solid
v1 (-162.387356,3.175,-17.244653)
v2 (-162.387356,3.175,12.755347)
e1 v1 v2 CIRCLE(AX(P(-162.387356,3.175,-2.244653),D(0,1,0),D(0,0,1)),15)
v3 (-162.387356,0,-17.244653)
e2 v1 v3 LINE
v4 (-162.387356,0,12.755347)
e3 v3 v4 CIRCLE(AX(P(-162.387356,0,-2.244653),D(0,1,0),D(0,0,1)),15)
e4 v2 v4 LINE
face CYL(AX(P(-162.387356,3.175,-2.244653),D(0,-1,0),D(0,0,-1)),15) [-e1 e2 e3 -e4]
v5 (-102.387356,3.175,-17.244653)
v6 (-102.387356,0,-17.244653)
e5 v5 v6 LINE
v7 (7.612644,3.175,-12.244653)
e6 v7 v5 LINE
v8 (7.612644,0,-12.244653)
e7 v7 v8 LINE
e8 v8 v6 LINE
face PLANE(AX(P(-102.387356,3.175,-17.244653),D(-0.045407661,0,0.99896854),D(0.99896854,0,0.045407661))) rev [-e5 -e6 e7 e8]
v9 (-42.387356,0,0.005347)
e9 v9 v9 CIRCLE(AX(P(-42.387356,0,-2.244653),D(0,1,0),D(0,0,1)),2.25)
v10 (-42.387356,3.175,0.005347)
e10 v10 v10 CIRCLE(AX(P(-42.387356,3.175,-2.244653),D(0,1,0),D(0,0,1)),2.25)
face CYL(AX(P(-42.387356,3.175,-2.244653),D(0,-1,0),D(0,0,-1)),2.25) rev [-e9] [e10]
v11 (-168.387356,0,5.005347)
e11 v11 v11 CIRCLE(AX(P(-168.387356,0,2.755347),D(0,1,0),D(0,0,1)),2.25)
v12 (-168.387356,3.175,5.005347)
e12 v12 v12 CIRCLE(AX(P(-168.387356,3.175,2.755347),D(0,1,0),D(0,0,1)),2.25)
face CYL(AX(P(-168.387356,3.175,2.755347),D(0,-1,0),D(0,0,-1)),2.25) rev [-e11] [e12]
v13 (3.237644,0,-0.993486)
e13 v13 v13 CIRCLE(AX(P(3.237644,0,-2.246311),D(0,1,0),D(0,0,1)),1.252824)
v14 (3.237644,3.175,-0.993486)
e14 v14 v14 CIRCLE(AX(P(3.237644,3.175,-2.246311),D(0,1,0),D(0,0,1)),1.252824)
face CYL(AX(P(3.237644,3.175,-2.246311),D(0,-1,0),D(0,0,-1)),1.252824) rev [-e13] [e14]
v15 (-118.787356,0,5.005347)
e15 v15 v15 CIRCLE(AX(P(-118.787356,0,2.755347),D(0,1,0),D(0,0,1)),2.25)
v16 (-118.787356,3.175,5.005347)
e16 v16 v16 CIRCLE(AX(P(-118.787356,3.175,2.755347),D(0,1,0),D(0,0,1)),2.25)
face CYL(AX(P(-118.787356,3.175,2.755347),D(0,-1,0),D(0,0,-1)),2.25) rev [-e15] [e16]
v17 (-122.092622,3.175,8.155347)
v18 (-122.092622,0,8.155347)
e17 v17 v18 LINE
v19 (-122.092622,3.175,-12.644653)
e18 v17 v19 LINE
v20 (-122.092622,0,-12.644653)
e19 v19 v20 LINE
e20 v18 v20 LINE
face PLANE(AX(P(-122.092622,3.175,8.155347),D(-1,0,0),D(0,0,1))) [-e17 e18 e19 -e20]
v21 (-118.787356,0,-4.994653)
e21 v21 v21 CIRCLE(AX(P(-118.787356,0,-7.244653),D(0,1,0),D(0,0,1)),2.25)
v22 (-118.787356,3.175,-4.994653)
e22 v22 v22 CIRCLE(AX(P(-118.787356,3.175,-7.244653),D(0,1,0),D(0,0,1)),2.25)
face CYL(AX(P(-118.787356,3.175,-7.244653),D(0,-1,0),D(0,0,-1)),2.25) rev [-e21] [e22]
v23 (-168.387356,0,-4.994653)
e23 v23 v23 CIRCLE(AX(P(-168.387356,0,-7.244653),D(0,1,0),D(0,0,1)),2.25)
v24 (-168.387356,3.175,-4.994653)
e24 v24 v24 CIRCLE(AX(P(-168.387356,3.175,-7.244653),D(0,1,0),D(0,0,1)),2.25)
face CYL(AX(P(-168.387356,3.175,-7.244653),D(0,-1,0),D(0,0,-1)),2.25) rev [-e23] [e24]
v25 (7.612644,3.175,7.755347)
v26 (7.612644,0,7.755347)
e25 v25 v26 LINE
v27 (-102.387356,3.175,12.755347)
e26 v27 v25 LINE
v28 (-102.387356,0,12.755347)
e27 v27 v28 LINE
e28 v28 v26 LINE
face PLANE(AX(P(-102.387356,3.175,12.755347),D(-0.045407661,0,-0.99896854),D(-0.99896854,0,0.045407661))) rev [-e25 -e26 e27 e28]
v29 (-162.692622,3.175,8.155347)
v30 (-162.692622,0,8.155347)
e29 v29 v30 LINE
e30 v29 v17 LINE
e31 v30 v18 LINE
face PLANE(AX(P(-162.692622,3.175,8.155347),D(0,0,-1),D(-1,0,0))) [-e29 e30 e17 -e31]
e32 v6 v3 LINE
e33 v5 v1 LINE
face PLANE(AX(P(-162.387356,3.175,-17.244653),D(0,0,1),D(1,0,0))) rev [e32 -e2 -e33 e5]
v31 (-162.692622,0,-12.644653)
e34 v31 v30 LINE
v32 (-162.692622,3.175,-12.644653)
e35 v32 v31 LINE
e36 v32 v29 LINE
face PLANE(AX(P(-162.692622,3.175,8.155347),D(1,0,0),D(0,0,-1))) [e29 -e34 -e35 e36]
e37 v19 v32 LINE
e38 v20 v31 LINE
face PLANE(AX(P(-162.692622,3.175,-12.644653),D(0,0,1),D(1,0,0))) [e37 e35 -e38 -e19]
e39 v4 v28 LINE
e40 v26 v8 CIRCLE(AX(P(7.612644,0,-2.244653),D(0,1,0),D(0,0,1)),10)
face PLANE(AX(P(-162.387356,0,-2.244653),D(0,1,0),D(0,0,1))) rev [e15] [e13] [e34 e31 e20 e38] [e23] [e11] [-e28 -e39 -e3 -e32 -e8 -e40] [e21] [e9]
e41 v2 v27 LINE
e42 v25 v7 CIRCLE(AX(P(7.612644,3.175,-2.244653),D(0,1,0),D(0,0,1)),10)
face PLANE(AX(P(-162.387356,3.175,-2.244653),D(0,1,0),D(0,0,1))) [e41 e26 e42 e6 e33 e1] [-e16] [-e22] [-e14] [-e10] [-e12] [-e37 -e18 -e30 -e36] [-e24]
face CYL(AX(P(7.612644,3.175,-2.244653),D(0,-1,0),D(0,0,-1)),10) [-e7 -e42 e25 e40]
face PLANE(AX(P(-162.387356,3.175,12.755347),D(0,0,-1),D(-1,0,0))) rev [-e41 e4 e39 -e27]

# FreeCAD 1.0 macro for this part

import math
import FreeCAD as App
import Part
import Sketcher

V = App.Vector

doc = App.newDocument("Part")
body = doc.addObject("PartDesign::Body", "Body")

sketch1 = body.newObject("Sketcher::SketchObject", "Sketch")
sketch1.AttachmentSupport = (doc.getObject("XZ_Plane"), [""])
sketch1.MapMode = "FlatFace"
sketch1.addGeometry(Part.LineSegment(V(-102.4, -17.2, 0), V(-162.4, -17.2, 0)), False)
sketch1.addGeometry(Part.ArcOfCircle(Part.Circle(V(-162.4, -2.2, 0), V(0, 0, 1), 15), math.radians(90), math.radians(270)), False)
sketch1.addGeometry(Part.LineSegment(V(-162.4, 12.8, 0), V(-102.4, 12.8, 0)), False)
sketch1.addGeometry(Part.LineSegment(V(-102.4, 12.8, 0), V(7.6, 7.8, 0)), False)
sketch1.addGeometry(Part.ArcOfCircle(Part.Circle(V(7.6, -2.2, 0), V(0, 0, 1), 10), math.radians(-90), math.radians(90)), False)
sketch1.addGeometry(Part.LineSegment(V(7.6, -12.2, 0), V(-102.4, -17.2, 0)), False)
sketch1.addGeometry(Part.Circle(V(-118.8, 2.8, 0), V(0, 0, 1), 2.2), False)
sketch1.addGeometry(Part.Circle(V(-168.4, 2.8, 0), V(0, 0, 1), 2.2), False)
sketch1.addGeometry(Part.Circle(V(3.2, -2.2, 0), V(0, 0, 1), 1.3), False)
sketch1.addGeometry(Part.Circle(V(-42.4, -2.2, 0), V(0, 0, 1), 2.2), False)
sketch1.addGeometry(Part.Circle(V(-118.8, -7.2, 0), V(0, 0, 1), 2.2), False)
sketch1.addGeometry(Part.LineSegment(V(-162.7, 8.2, 0), V(-162.7, -12.6, 0)), False)
sketch1.addGeometry(Part.LineSegment(V(-162.7, -12.6, 0), V(-122.1, -12.6, 0)), False)
sketch1.addGeometry(Part.LineSegment(V(-122.1, -12.6, 0), V(-122.1, 8.2, 0)), False)
sketch1.addGeometry(Part.LineSegment(V(-122.1, 8.2, 0), V(-162.7, 8.2, 0)), False)
sketch1.addGeometry(Part.Circle(V(-168.4, -7.2, 0), V(0, 0, 1), 2.2), False)
sketch1.addConstraint(Sketcher.Constraint("Tangent", 0, 2, 1, 2))
sketch1.addConstraint(Sketcher.Constraint("Tangent", 1, 1, 2, 1))
sketch1.addConstraint(Sketcher.Constraint("Coincident", 2, 2, 3, 1))
sketch1.addConstraint(Sketcher.Constraint("Coincident", 3, 2, 4, 2))
sketch1.addConstraint(Sketcher.Constraint("Coincident", 4, 1, 5, 1))
sketch1.addConstraint(Sketcher.Constraint("Coincident", 5, 2, 0, 1))
sketch1.addConstraint(Sketcher.Constraint("Coincident", 11, 2, 12, 1))
sketch1.addConstraint(Sketcher.Constraint("Coincident", 12, 2, 13, 1))
sketch1.addConstraint(Sketcher.Constraint("Coincident", 13, 2, 14, 1))
sketch1.addConstraint(Sketcher.Constraint("Coincident", 14, 2, 11, 1))
sketch1.addConstraint(Sketcher.Constraint("Horizontal", 0))
sketch1.addConstraint(Sketcher.Constraint("Horizontal", 2))
sketch1.addConstraint(Sketcher.Constraint("Vertical", 11))
sketch1.addConstraint(Sketcher.Constraint("Horizontal", 12))
sketch1.addConstraint(Sketcher.Constraint("Vertical", 13))
sketch1.addConstraint(Sketcher.Constraint("Horizontal", 14))
sketch1.addConstraint(Sketcher.Constraint("Equal", 6, 7))
sketch1.addConstraint(Sketcher.Constraint("Equal", 7, 9))
sketch1.addConstraint(Sketcher.Constraint("Equal", 9, 10))
sketch1.addConstraint(Sketcher.Constraint("Equal", 10, 15))
sketch1.addConstraint(Sketcher.Constraint("Horizontal", 1, 3, 4, 3))
sketch1.addConstraint(Sketcher.Constraint("Horizontal", 6, 3, 7, 3))
sketch1.addConstraint(Sketcher.Constraint("Horizontal", 4, 3, 9, 3))
sketch1.addConstraint(Sketcher.Constraint("Horizontal", 10, 3, 15, 3))
sketch1.addConstraint(Sketcher.Constraint("Vertical", 6, 3, 10, 3))
sketch1.addConstraint(Sketcher.Constraint("Vertical", 7, 3, 15, 3))
sketch1.addConstraint(Sketcher.Constraint("Vertical", 4, 3, 3, 2))
sketch1.addConstraint(Sketcher.Constraint("Vertical", 3, 2, 4, 1))
sketch1.addConstraint(Sketcher.Constraint("Vertical", 2, 2, 5, 2))
sketch1.addConstraint(Sketcher.Constraint("Radius", 1, 15.0))
sketch1.addConstraint(Sketcher.Constraint("Radius", 4, 10.0))
sketch1.addConstraint(Sketcher.Constraint("Diameter", 6, 4.5))
sketch1.addConstraint(Sketcher.Constraint("DistanceX", 0, 2, 0, 1, 60.0))
sketch1.addConstraint(Sketcher.Constraint("DistanceX", 12, 1, 12, 2, 40.6))
sketch1.addConstraint(Sketcher.Constraint("DistanceY", 11, 2, 11, 1, 20.8))
sketch1.addConstraint(Sketcher.Constraint("DistanceX", 1, 3, 4, 3, 170.0))
sketch1.addConstraint(Sketcher.Constraint("DistanceY", 1, 3, 6, 3, 5.0))
sketch1.addConstraint(Sketcher.Constraint("DistanceX", 7, 3, 1, 3, 6.0))
sketch1.addConstraint(Sketcher.Constraint("DistanceX", 9, 3, 4, 3, 50.0))
sketch1.addConstraint(Sketcher.Constraint("DistanceY", 10, 3, 6, 3, 10.0))
sketch1.addConstraint(Sketcher.Constraint("DistanceX", 1, 3, 6, 3, 43.6))
sketch1.addConstraint(Sketcher.Constraint("DistanceY", 0, 2, 11, 2, 4.6))
sketch1.addConstraint(Sketcher.Constraint("Diameter", 8, 2.505649))
sketch1.addConstraint(Sketcher.Constraint("DistanceX", 8, 3, 4, 3, 4.375))
sketch1.addConstraint(Sketcher.Constraint("DistanceY", 8, 3, -1, 1, 2.246311))
sketch1.addConstraint(Sketcher.Constraint("DistanceX", 11, 2, -1, 1, 162.692622))
sketch1.addConstraint(Sketcher.Constraint("DistanceX", 1, 3, -1, 1, 162.387356))
sketch1.addConstraint(Sketcher.Constraint("DistanceY", 1, 3, -1, 1, 2.244653))
pad1 = body.newObject("PartDesign::Pad", "Pad")
pad1.Profile = sketch1
pad1.Length = 3.175
pad1.Reversed = True

doc.recompute()
